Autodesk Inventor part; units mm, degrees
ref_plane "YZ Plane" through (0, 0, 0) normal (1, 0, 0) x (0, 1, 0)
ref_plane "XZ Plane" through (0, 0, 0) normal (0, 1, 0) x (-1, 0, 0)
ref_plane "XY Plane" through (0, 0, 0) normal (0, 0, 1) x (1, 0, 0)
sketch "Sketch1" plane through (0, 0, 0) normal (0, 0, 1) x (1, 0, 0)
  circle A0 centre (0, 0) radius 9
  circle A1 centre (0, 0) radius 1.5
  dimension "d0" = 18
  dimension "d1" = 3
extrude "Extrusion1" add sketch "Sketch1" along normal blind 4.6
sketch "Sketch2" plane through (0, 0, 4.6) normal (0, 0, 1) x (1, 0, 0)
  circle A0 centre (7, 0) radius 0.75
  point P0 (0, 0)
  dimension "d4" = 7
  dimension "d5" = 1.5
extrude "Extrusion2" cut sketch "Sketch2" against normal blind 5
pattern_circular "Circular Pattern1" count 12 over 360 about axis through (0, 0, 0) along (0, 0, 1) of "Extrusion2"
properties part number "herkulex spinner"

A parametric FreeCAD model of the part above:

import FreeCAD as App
import Part
import Sketcher

doc = App.newDocument("Part")
params = doc.addObject("Spreadsheet::Sheet", "Params")
for row, (alias, value) in enumerate([
    ("sketch1_diameter", "18 mm"),
    ("sketch1_diameter2", "3 mm"),
    ("pad1_length", "4.6 mm"),
    ("sketch2_diameter", "1.5 mm"),
    ("pocket1_length", "5 mm"),
], start=1):
    params.set(f"A{row}", alias)
    params.set(f"B{row}", "=" + value)
    params.setAlias(f"B{row}", alias)

body = doc.addObject("PartDesign::Body", "Body")

sketch1 = body.newObject("Sketcher::SketchObject", "Sketch")
sketch1.AttachmentSupport = (doc.getObject("XY_Plane"), [""])
sketch1.MapMode = "FlatFace"
sketch1.addGeometry([
    Part.Circle(App.Vector(0, 0, 0), App.Vector(0, 0, 1), 9),
    Part.Circle(App.Vector(0, 0, 0), App.Vector(0, 0, 1), 1.5),
], False)
sketch1.addConstraint([
    Sketcher.Constraint("Coincident", 0, 3, -1, 1),
    Sketcher.Constraint("Coincident", 1, 3, -1, 1),
    Sketcher.Constraint("Diameter", 0, 18.0),
    Sketcher.Constraint("Diameter", 1, 3.0),
])
sketch1.setExpression("Constraints[2]", "Params.sketch1_diameter")
sketch1.setExpression("Constraints[3]", "Params.sketch1_diameter2")
pad1 = body.newObject("PartDesign::Pad", "Pad")
pad1.Profile = sketch1
pad1.setExpression("Length", "Params.pad1_length")

sketch2 = body.newObject("Sketcher::SketchObject", "Sketch001")
sketch2.AttachmentSupport = (doc.getObject("XY_Plane"), [""])
sketch2.MapMode = "FlatFace"
sketch2.AttachmentOffset = App.Placement(App.Vector(0, 0, 4.6), App.Rotation())
sketch2.addGeometry(Part.Circle(App.Vector(7, 0, 0), App.Vector(0, 0, 1), 0.75), False)
sketch2.addConstraint([
    Sketcher.Constraint("PointOnObject", 0, 3, -1),
    Sketcher.Constraint("Diameter", 0, 1.5),
    Sketcher.Constraint("DistanceX", -1, 1, 0, 3, 7.0),
])
sketch2.setExpression("Constraints[1]", "Params.sketch2_diameter")
pocket1 = body.newObject("PartDesign::Pocket", "Pocket")
pocket1.Profile = sketch2
pocket1.setExpression("Length", "Params.pocket1_length")
doc.recompute()

polarpattern = body.newObject("PartDesign::PolarPattern", "PolarPattern")
polarpattern.Originals = [pocket1]
polarpattern.Axis = (doc.getObject("Z_Axis"), [""])
polarpattern.Angle = 360
polarpattern.Occurrences = 12
body.Tip = polarpattern

doc.recompute()
